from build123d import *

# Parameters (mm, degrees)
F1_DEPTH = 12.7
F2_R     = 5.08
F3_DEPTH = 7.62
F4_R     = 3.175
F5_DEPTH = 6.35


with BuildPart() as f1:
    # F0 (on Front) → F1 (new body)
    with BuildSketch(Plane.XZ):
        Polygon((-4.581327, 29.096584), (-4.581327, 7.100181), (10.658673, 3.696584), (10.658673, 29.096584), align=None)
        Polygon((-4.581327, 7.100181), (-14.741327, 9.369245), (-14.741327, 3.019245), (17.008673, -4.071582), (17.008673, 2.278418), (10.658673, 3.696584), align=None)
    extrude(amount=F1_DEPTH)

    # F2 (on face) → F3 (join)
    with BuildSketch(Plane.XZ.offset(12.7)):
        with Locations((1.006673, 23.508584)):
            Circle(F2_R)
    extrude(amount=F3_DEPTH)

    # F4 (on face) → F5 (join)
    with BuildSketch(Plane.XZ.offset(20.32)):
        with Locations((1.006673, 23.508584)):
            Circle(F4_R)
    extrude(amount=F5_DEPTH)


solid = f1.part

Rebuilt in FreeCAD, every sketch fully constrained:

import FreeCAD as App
import Part
import Sketcher

V = App.Vector
Q = App.Units.Quantity

doc = App.newDocument("Part")
body = doc.addObject("PartDesign::Body", "Body")

sketch1 = body.newObject("Sketcher::SketchObject", "Sketch")
sketch1.AttachmentSupport = (doc.getObject("XZ_Plane"), [""])
sketch1.MapMode = "FlatFace"
sketch1.addGeometry(Part.LineSegment(V(-5, 29, 0), V(-5, 7, 0)), False)
sketch1.addGeometry(Part.LineSegment(V(-5, 7, 0), V(-15, 9, 0)), False)
sketch1.addGeometry(Part.LineSegment(V(-15, 9, 0), V(-15, 3, 0)), False)
sketch1.addGeometry(Part.LineSegment(V(-15, 3, 0), V(17, -4, 0)), False)
sketch1.addGeometry(Part.LineSegment(V(17, -4, 0), V(17, 2, 0)), False)
sketch1.addGeometry(Part.LineSegment(V(17, 2, 0), V(11, 4, 0)), False)
sketch1.addGeometry(Part.LineSegment(V(11, 4, 0), V(11, 29, 0)), False)
sketch1.addGeometry(Part.LineSegment(V(11, 29, 0), V(-5, 29, 0)), False)
sketch1.addConstraint(Sketcher.Constraint("Coincident", 0, 2, 1, 1))
sketch1.addConstraint(Sketcher.Constraint("Coincident", 1, 2, 2, 1))
sketch1.addConstraint(Sketcher.Constraint("Coincident", 2, 2, 3, 1))
sketch1.addConstraint(Sketcher.Constraint("Coincident", 3, 2, 4, 1))
sketch1.addConstraint(Sketcher.Constraint("Coincident", 4, 2, 5, 1))
sketch1.addConstraint(Sketcher.Constraint("Coincident", 5, 2, 6, 1))
sketch1.addConstraint(Sketcher.Constraint("Coincident", 6, 2, 7, 1))
sketch1.addConstraint(Sketcher.Constraint("Coincident", 7, 2, 0, 1))
sketch1.addConstraint(Sketcher.Constraint("Vertical", 0))
sketch1.addConstraint(Sketcher.Constraint("Vertical", 2))
sketch1.addConstraint(Sketcher.Constraint("Vertical", 4))
sketch1.addConstraint(Sketcher.Constraint("Vertical", 6))
sketch1.addConstraint(Sketcher.Constraint("Horizontal", 7))
sketch1.addConstraint(Sketcher.Constraint("Parallel", 1, 3))
sketch1.addConstraint(Sketcher.Constraint("Parallel", 3, 5))
sketch1.addConstraint(Sketcher.Constraint("Equal", 2, 4))
sketch1.addConstraint(Sketcher.Constraint("DistanceY", 6, 1, 6, 2, Q("1 in")))
sketch1.addConstraint(Sketcher.Constraint("DistanceX", 7, 2, 7, 1, Q("0.6 in")))
sketch1.addConstraint(Sketcher.Constraint("DistanceX", 2, 2, 5, 2, Q("1 in")))
sketch1.addConstraint(Sketcher.Constraint("DistanceY", 2, 2, 2, 1, Q("0.25 in")))
sketch1.addConstraint(Sketcher.Constraint("DistanceY", 0, 2, 0, 1, Q("0.8660001 in")))
sketch1.addConstraint(Sketcher.Constraint("DistanceX", 0, 2, 3, 2, Q("0.85 in")))
sketch1.addConstraint(Sketcher.Constraint("DistanceY", -1, 1, 0, 2, Q("7.100181 mm")))
sketch1.addConstraint(Sketcher.Constraint("DistanceX", 0, 2, -1, 1, Q("4.581327 mm")))
pad1 = body.newObject("PartDesign::Pad", "Pad")
pad1.Profile = sketch1
pad1.Length = Q("0.5 in")

sketch2 = body.newObject("Sketcher::SketchObject", "Sketch001")
sketch2.AttachmentSupport = (doc.getObject("XZ_Plane"), [""])
sketch2.MapMode = "FlatFace"
sketch2.AttachmentOffset = App.Placement(V(0, 0, 0.5 * 25.4), App.Rotation())
sketch2.addGeometry(Part.Circle(V(1, 24, 0), V(0, 0, 1), 5), False)
sketch2.addConstraint(Sketcher.Constraint("Diameter", 0, Q("0.4 in")))
sketch2.addConstraint(Sketcher.Constraint("DistanceX", -1, 1, 0, 3, Q("1.006673 mm")))
sketch2.addConstraint(Sketcher.Constraint("DistanceY", -1, 1, 0, 3, Q("23.508584 mm")))
pad2 = body.newObject("PartDesign::Pad", "Pad001")
pad2.Profile = sketch2
pad2.Length = Q("0.3 in")

sketch3 = body.newObject("Sketcher::SketchObject", "Sketch002")
sketch3.AttachmentSupport = (doc.getObject("XZ_Plane"), [""])
sketch3.MapMode = "FlatFace"
sketch3.AttachmentOffset = App.Placement(V(0, 0, 0.8 * 25.4), App.Rotation())
sketch3.addGeometry(Part.Circle(V(1, 23.5, 0), V(0, 0, 1), 3.2), False)
sketch3.addConstraint(Sketcher.Constraint("Diameter", 0, Q("0.25 in")))
sketch3.addConstraint(Sketcher.Constraint("DistanceX", -1, 1, 0, 3, Q("1.006673 mm")))
sketch3.addConstraint(Sketcher.Constraint("DistanceY", -1, 1, 0, 3, Q("23.508584 mm")))
pad3 = body.newObject("PartDesign::Pad", "Pad002")
pad3.Profile = sketch3
pad3.Length = Q("0.25 in")

doc.recompute()
